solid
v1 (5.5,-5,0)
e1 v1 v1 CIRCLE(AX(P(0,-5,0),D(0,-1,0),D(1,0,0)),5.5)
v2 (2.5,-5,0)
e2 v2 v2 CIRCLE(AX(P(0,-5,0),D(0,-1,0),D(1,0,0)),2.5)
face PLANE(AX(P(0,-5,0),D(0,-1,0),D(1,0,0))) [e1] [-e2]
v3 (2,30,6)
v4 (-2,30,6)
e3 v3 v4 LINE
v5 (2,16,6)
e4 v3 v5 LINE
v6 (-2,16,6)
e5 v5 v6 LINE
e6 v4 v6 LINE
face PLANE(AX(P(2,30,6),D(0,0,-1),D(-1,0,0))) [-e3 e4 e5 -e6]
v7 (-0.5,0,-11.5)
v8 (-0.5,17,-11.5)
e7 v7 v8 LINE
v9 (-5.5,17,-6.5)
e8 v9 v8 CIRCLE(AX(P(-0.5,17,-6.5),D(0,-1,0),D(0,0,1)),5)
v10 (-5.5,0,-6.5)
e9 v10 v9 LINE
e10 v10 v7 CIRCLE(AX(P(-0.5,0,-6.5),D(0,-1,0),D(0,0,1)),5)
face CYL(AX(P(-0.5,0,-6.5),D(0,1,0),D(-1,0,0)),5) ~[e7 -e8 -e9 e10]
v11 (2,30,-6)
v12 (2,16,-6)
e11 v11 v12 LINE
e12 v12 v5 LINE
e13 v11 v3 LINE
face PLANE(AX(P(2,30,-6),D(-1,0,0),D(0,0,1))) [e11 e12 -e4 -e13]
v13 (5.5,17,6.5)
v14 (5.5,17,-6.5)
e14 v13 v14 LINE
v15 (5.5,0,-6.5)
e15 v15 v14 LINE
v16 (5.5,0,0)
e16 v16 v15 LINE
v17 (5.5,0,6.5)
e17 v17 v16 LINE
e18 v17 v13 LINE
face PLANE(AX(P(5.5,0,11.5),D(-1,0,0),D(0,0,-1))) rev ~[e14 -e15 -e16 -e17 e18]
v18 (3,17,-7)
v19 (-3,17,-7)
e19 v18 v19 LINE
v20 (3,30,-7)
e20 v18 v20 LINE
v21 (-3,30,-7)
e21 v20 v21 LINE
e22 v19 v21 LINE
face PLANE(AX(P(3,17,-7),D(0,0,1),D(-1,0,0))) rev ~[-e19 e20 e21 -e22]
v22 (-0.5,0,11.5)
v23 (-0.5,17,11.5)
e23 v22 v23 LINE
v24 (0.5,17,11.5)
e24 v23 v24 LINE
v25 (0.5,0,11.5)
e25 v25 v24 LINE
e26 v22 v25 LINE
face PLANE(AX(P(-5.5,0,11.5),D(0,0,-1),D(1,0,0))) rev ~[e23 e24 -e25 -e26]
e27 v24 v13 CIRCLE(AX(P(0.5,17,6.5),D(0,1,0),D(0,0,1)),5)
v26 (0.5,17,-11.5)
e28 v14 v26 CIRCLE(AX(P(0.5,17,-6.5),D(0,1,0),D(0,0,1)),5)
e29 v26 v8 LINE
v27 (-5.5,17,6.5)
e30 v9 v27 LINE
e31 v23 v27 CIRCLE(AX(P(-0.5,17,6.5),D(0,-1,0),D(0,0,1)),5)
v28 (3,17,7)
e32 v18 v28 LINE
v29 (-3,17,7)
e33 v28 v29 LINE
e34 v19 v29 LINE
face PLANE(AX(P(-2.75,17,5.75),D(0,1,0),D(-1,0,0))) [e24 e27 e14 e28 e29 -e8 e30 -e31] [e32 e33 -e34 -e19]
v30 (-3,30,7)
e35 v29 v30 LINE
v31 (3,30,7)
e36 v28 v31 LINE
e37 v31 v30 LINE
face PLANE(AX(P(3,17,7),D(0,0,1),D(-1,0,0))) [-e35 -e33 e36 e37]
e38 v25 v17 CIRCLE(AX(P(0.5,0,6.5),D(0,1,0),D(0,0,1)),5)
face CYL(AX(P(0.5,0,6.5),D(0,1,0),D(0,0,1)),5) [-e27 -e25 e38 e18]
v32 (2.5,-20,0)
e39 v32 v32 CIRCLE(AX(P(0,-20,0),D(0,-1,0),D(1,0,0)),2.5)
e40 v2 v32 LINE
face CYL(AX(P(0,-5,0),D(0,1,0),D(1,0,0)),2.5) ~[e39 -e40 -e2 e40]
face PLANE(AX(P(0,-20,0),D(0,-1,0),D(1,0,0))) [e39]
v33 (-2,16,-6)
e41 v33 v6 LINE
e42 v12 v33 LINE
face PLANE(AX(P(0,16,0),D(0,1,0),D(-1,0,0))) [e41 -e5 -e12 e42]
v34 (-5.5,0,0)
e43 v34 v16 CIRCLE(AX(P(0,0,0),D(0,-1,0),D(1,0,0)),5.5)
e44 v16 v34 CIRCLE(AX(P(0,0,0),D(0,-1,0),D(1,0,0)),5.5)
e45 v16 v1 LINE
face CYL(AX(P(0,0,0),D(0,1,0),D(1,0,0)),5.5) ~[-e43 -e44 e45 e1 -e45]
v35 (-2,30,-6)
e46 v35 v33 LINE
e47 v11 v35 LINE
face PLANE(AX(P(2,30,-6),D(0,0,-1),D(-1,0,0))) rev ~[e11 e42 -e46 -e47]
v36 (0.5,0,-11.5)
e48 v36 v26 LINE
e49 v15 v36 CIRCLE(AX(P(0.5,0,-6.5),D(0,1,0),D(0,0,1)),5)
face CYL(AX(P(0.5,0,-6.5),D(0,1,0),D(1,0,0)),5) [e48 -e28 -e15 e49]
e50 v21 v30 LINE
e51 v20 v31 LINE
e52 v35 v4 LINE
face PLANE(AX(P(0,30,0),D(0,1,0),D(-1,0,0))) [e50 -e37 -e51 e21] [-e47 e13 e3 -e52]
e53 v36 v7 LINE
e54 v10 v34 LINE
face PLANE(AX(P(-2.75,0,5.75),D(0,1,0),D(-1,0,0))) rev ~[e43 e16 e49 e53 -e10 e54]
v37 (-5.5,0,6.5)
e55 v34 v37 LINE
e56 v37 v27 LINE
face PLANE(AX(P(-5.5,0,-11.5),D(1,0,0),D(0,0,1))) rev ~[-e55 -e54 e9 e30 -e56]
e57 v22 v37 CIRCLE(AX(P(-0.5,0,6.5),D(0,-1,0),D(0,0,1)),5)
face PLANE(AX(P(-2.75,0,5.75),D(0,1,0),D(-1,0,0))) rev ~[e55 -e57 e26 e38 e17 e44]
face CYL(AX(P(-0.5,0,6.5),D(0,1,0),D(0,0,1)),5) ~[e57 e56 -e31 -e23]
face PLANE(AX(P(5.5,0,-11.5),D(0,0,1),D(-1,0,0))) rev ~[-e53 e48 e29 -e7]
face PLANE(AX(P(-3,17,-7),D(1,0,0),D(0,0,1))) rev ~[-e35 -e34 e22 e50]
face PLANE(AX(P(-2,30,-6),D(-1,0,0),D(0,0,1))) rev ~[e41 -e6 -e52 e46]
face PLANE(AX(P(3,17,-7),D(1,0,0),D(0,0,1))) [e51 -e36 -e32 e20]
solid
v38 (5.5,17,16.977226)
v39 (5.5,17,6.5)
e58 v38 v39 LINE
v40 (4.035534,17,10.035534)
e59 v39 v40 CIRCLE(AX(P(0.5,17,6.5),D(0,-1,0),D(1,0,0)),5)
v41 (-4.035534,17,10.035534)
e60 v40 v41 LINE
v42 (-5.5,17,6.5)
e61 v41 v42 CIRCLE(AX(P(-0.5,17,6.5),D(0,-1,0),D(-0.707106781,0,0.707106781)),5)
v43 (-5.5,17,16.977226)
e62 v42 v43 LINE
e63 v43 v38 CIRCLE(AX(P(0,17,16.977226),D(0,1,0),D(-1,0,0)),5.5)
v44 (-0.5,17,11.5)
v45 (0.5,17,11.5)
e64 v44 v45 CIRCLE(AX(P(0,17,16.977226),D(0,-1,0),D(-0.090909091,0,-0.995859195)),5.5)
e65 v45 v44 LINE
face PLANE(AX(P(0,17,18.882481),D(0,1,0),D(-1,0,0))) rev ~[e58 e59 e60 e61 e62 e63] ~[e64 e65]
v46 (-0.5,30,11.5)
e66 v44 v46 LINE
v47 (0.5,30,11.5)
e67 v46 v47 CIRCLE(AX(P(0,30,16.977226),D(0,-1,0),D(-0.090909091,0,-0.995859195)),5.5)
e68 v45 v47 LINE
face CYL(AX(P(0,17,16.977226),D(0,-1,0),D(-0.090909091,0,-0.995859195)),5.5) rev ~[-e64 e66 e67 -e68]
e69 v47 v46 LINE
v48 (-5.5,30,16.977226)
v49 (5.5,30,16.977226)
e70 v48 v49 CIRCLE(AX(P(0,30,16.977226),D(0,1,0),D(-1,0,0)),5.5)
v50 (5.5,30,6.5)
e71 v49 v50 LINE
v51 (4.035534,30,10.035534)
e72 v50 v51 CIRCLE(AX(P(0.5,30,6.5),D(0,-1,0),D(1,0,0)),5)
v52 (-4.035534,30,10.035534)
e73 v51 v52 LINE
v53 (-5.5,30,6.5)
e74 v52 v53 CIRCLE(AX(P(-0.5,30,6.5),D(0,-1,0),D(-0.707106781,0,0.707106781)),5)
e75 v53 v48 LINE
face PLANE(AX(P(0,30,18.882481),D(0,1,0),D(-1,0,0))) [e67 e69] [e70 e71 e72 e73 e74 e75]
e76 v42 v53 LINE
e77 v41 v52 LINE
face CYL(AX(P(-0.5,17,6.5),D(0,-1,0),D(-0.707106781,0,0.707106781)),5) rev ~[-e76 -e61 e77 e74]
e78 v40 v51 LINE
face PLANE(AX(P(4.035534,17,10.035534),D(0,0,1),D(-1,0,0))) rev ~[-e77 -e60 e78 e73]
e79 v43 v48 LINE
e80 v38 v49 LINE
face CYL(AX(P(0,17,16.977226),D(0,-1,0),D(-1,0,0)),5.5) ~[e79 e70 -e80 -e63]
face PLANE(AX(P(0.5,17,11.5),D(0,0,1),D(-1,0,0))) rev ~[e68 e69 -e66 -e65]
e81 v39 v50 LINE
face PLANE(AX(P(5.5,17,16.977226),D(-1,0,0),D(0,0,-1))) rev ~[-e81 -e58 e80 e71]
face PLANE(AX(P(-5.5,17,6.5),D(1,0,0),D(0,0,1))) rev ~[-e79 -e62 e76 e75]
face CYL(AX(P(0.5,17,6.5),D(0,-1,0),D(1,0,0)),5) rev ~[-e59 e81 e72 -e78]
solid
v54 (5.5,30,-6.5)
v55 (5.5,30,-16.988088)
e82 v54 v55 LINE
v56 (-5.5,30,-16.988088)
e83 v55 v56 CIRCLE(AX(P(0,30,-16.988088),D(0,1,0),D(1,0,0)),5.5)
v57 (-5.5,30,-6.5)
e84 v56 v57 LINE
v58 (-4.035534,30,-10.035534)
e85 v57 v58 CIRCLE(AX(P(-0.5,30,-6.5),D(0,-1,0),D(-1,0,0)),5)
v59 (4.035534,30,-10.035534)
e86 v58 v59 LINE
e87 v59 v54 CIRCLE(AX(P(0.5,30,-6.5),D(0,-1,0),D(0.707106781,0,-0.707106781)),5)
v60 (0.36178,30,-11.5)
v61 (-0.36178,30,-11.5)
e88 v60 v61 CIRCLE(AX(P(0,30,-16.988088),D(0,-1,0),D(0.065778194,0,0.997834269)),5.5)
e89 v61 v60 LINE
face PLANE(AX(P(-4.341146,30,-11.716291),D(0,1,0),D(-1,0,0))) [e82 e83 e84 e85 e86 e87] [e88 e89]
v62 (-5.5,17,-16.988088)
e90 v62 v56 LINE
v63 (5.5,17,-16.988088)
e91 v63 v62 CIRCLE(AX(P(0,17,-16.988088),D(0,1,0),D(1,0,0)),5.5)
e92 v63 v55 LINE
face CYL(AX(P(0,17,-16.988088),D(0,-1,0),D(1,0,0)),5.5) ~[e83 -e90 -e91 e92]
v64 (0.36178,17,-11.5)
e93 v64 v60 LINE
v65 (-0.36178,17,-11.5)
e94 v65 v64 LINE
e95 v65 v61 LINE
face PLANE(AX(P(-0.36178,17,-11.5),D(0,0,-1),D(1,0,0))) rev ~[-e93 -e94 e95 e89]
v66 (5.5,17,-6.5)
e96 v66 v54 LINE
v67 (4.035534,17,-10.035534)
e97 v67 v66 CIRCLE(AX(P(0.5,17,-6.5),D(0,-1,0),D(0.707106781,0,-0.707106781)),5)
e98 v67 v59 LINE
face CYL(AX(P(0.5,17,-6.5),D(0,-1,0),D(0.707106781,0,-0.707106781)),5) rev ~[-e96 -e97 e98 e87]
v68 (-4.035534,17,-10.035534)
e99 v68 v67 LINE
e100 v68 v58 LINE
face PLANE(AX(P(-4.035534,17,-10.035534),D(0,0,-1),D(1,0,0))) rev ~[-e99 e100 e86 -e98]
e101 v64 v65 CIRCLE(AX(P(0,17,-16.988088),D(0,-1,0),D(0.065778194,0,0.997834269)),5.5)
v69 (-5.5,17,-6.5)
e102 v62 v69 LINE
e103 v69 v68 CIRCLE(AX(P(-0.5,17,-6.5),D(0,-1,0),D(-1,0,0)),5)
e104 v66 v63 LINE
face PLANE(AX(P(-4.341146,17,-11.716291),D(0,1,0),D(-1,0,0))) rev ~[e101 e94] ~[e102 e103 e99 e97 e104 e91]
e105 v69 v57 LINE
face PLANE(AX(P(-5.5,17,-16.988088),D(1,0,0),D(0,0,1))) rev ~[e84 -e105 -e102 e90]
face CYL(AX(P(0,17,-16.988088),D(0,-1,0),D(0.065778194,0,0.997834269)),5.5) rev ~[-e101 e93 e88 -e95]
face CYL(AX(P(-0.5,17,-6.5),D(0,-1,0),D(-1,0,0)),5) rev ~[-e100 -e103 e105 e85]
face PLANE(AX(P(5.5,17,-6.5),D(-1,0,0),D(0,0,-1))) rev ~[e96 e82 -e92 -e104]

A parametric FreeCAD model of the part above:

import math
import FreeCAD as App
import Part
import Sketcher

V = App.Vector


def edges_at(feature, points):
    """Names of the edges that pass closest to the given points."""
    edges = feature.Shape.Edges
    near = lambda p: min(range(len(edges)), key=lambda i: edges[i].distToShape(Part.Vertex(*p))[0])
    return sorted({f"Edge{near(p) + 1}" for p in points})

doc = App.newDocument("Part")
body = doc.addObject("PartDesign::Body", "Body")

# Sketch on XZ plane
sketch1 = body.newObject("Sketcher::SketchObject", "Sketch")
sketch1.AttachmentSupport = (doc.getObject("XZ_Plane"), [""])
sketch1.MapMode = "FlatFace"
sketch1.addGeometry(Part.Circle(V(0, 0, 0), V(0, 0, 1), 6), False)
sketch1.addConstraint(Sketcher.Constraint("Coincident", 0, 3, -1, 1))
sketch1.addConstraint(Sketcher.Constraint("Diameter", 0, 11.0))
pad1 = body.newObject("PartDesign::Pad", "Pad")
pad1.Profile = sketch1
pad1.Length = 5

# Sketch on XZ plane
sketch2 = body.newObject("Sketcher::SketchObject", "Sketch001")
sketch2.AttachmentSupport = (doc.getObject("XZ_Plane"), [""])
sketch2.MapMode = "FlatFace"
sketch2.AttachmentOffset = App.Placement(V(0, 0, 5), App.Rotation())
sketch2.addGeometry(Part.Circle(V(0, 0, 0), V(0, 0, 1), 2.5), False)
sketch2.addConstraint(Sketcher.Constraint("Coincident", 0, 3, -1, 1))
sketch2.addConstraint(Sketcher.Constraint("Diameter", 0, 5.0))
pad2 = body.newObject("PartDesign::Pad", "Pad001")
pad2.Profile = sketch2
pad2.Length = 15

# Sketch on XZ plane
sketch3 = body.newObject("Sketcher::SketchObject", "Sketch002")
sketch3.AttachmentSupport = (doc.getObject("XZ_Plane"), [""])
sketch3.MapMode = "FlatFace"
sketch3.addGeometry(Part.LineSegment(V(-6, 12, 0), V(6, 12, 0)), False)
sketch3.addGeometry(Part.LineSegment(V(6, 12, 0), V(6, -12, 0)), False)
sketch3.addGeometry(Part.LineSegment(V(6, -12, 0), V(-6, -12, 0)), False)
sketch3.addGeometry(Part.LineSegment(V(-6, -12, 0), V(-6, 12, 0)), False)
sketch3.addConstraint(Sketcher.Constraint("Coincident", 0, 2, 1, 1))
sketch3.addConstraint(Sketcher.Constraint("Coincident", 1, 2, 2, 1))
sketch3.addConstraint(Sketcher.Constraint("Coincident", 2, 2, 3, 1))
sketch3.addConstraint(Sketcher.Constraint("Coincident", 3, 2, 0, 1))
sketch3.addConstraint(Sketcher.Constraint("Horizontal", 0))
sketch3.addConstraint(Sketcher.Constraint("Vertical", 1))
sketch3.addConstraint(Sketcher.Constraint("Horizontal", 2))
sketch3.addConstraint(Sketcher.Constraint("Vertical", 3))
sketch3.addConstraint(Sketcher.Constraint("Symmetric", 0, 2, 2, 2, -1, 1))
sketch3.addConstraint(Sketcher.Constraint("DistanceX", 0, 1, 0, 2, 11.0))
sketch3.addConstraint(Sketcher.Constraint("DistanceY", 1, 2, 1, 1, 23.0))
pad3 = body.newObject("PartDesign::Pad", "Pad002")
pad3.Profile = sketch3
pad3.Length = 17
pad3.Reversed = True
doc.recompute()

fillet = body.newObject("PartDesign::Fillet", "Fillet")
fillet.Base = (pad3, edges_at(pad3, [
    (-5.5, 8.5, -11.5),
    (5.5, 8.5, -11.5),
    (5.5, 8.5, 11.5),
    (-5.5, 8.5, 11.5),
]))
fillet.Radius = 5

# Sketch on XZ plane
sketch4 = body.newObject("Sketcher::SketchObject", "Sketch003")
sketch4.AttachmentSupport = (doc.getObject("XZ_Plane"), [""])
sketch4.MapMode = "FlatFace"
sketch4.AttachmentOffset = App.Placement(V(0, 0, -17), App.Rotation())
sketch4.addGeometry(Part.LineSegment(V(3, 7, 0), V(3, -7, 0)), False)
sketch4.addGeometry(Part.LineSegment(V(3, -7, 0), V(-3, -7, 0)), False)
sketch4.addGeometry(Part.LineSegment(V(-3, -7, 0), V(-3, 7, 0)), False)
sketch4.addGeometry(Part.LineSegment(V(-3, 7, 0), V(3, 7, 0)), False)
sketch4.addConstraint(Sketcher.Constraint("Coincident", 0, 2, 1, 1))
sketch4.addConstraint(Sketcher.Constraint("Coincident", 1, 2, 2, 1))
sketch4.addConstraint(Sketcher.Constraint("Coincident", 2, 2, 3, 1))
sketch4.addConstraint(Sketcher.Constraint("Coincident", 3, 2, 0, 1))
sketch4.addConstraint(Sketcher.Constraint("Vertical", 0))
sketch4.addConstraint(Sketcher.Constraint("Horizontal", 1))
sketch4.addConstraint(Sketcher.Constraint("Vertical", 2))
sketch4.addConstraint(Sketcher.Constraint("Horizontal", 3))
sketch4.addConstraint(Sketcher.Constraint("Symmetric", 0, 2, 2, 2, -1, 1))
sketch4.addConstraint(Sketcher.Constraint("DistanceX", 1, 2, 1, 1, 6.0))
sketch4.addConstraint(Sketcher.Constraint("DistanceY", 0, 2, 0, 1, 14.0))
pad4 = body.newObject("PartDesign::Pad", "Pad003")
pad4.Profile = sketch4
pad4.Length = 13
pad4.Reversed = True

# Sketch on XZ plane
sketch5 = body.newObject("Sketcher::SketchObject", "Sketch004")
sketch5.AttachmentSupport = (doc.getObject("XZ_Plane"), [""])
sketch5.MapMode = "FlatFace"
sketch5.AttachmentOffset = App.Placement(V(0, 0, -30), App.Rotation())
sketch5.addGeometry(Part.LineSegment(V(2, 6, 0), V(2, -6, 0)), False)
sketch5.addGeometry(Part.LineSegment(V(2, -6, 0), V(-2, -6, 0)), False)
sketch5.addGeometry(Part.LineSegment(V(-2, -6, 0), V(-2, 6, 0)), False)
sketch5.addGeometry(Part.LineSegment(V(-2, 6, 0), V(2, 6, 0)), False)
sketch5.addConstraint(Sketcher.Constraint("Coincident", 0, 2, 1, 1))
sketch5.addConstraint(Sketcher.Constraint("Coincident", 1, 2, 2, 1))
sketch5.addConstraint(Sketcher.Constraint("Coincident", 2, 2, 3, 1))
sketch5.addConstraint(Sketcher.Constraint("Coincident", 3, 2, 0, 1))
sketch5.addConstraint(Sketcher.Constraint("Vertical", 0))
sketch5.addConstraint(Sketcher.Constraint("Horizontal", 1))
sketch5.addConstraint(Sketcher.Constraint("Vertical", 2))
sketch5.addConstraint(Sketcher.Constraint("Horizontal", 3))
sketch5.addConstraint(Sketcher.Constraint("Symmetric", 0, 2, 2, 2, -1, 1))
sketch5.addConstraint(Sketcher.Constraint("DistanceX", 1, 2, 1, 1, 4.0))
sketch5.addConstraint(Sketcher.Constraint("DistanceY", 0, 2, 0, 1, 12.0))
pocket1 = body.newObject("PartDesign::Pocket", "Pocket")
pocket1.Profile = sketch5
pocket1.Length = 14
pocket1.Reversed = True
body2 = doc.addObject("PartDesign::Body", "Body001")

# Sketch on XZ plane
sketch6 = body2.newObject("Sketcher::SketchObject", "Sketch005")
sketch6.AttachmentSupport = (doc.getObject("XZ_Plane001"), [""])
sketch6.MapMode = "FlatFace"
sketch6.AttachmentOffset = App.Placement(V(0, 0, -17), App.Rotation())
sketch6.addGeometry(Part.ArcOfCircle(Part.Circle(V(0, 17, 0), V(0, 0, 1), 5.5), math.radians(0), math.radians(180)), False)
sketch6.addGeometry(Part.LineSegment(V(5.5, 17, 0), V(5.5, 6.5, 0)), False)
sketch6.addGeometry(Part.ArcOfCircle(Part.Circle(V(0.5, 6.5, 0), V(0, 0, 1), 5), math.radians(0), math.radians(45)), False)
sketch6.addGeometry(Part.LineSegment(V(4, 10, 0), V(-4, 10, 0)), False)
sketch6.addGeometry(Part.ArcOfCircle(Part.Circle(V(-0.5, 6.5, 0), V(0, 0, 1), 5), math.radians(135), math.radians(180)), False)
sketch6.addGeometry(Part.LineSegment(V(-5.5, 6.5, 0), V(-5.5, 17, 0)), False)
sketch6.addGeometry(Part.LineSegment(V(0.5, 11.5, 0), V(-0.5, 11.5, 0)), False)
sketch6.addGeometry(Part.ArcOfCircle(Part.Circle(V(0, 17, 0), V(0, 0, 1), 5.5), math.radians(-95.22), math.radians(-84.78)), False)
sketch6.addConstraint(Sketcher.Constraint("Tangent", 0, 1, 1, 1))
sketch6.addConstraint(Sketcher.Constraint("Tangent", 1, 2, 2, 1))
sketch6.addConstraint(Sketcher.Constraint("Coincident", 2, 2, 3, 1))
sketch6.addConstraint(Sketcher.Constraint("Coincident", 3, 2, 4, 1))
sketch6.addConstraint(Sketcher.Constraint("Tangent", 4, 2, 5, 1))
sketch6.addConstraint(Sketcher.Constraint("Tangent", 5, 2, 0, 2))
sketch6.addConstraint(Sketcher.Constraint("Coincident", 6, 1, 7, 2))
sketch6.addConstraint(Sketcher.Constraint("Coincident", 7, 1, 6, 2))
sketch6.addConstraint(Sketcher.Constraint("Vertical", 1))
sketch6.addConstraint(Sketcher.Constraint("Horizontal", 3))
sketch6.addConstraint(Sketcher.Constraint("Vertical", 5))
sketch6.addConstraint(Sketcher.Constraint("Horizontal", 6))
sketch6.addConstraint(Sketcher.Constraint("Coincident", 7, 3, 0, 3))
sketch6.addConstraint(Sketcher.Constraint("Equal", 2, 4))
sketch6.addConstraint(Sketcher.Constraint("Equal", 0, 7))
sketch6.addConstraint(Sketcher.Constraint("Symmetric", 2, 3, 4, 3, -2))
sketch6.addConstraint(Sketcher.Constraint("Vertical", 2, 3, 6, 1))
sketch6.addConstraint(Sketcher.Constraint("Radius", 2, 5.0))
sketch6.addConstraint(Sketcher.Constraint("Radius", 0, 5.5))
sketch6.addConstraint(Sketcher.Constraint("DistanceY", 2, 3, 6, 1, 5.0))
sketch6.addConstraint(Sketcher.Constraint("DistanceY", -1, 1, 2, 3, 6.5))
sketch6.addConstraint(Sketcher.Constraint("DistanceX", 3, 2, 3, 1, 8.071068))
pad5 = body2.newObject("PartDesign::Pad", "Pad004")
pad5.Profile = sketch6
pad5.Length = 13
pad5.Reversed = True
body3 = doc.addObject("PartDesign::Body", "Body002")

# Sketch on XZ plane
sketch7 = body3.newObject("Sketcher::SketchObject", "Sketch006")
sketch7.AttachmentSupport = (doc.getObject("XZ_Plane002"), [""])
sketch7.MapMode = "FlatFace"
sketch7.AttachmentOffset = App.Placement(V(0, 0, -17), App.Rotation())
sketch7.addGeometry(Part.LineSegment(V(-5.5, -17, 0), V(-5.5, -6.5, 0)), False)
sketch7.addGeometry(Part.ArcOfCircle(Part.Circle(V(-0.5, -6.5, 0), V(0, 0, 1), 5), math.radians(180), math.radians(225)), False)
sketch7.addGeometry(Part.LineSegment(V(-4, -10, 0), V(4, -10, 0)), False)
sketch7.addGeometry(Part.ArcOfCircle(Part.Circle(V(0.5, -6.5, 0), V(0, 0, 1), 5), math.radians(-45), math.radians(0)), False)
sketch7.addGeometry(Part.LineSegment(V(5.5, -6.5, 0), V(5.5, -17, 0)), False)
sketch7.addGeometry(Part.ArcOfCircle(Part.Circle(V(0, -17, 0), V(0, 0, 1), 5.5), math.radians(180), math.radians(360)), False)
sketch7.addGeometry(Part.LineSegment(V(-0.4, -11.5, 0), V(0.4, -11.5, 0)), False)
sketch7.addGeometry(Part.ArcOfCircle(Part.Circle(V(0, -17, 0), V(0, 0, 1), 5.5), math.radians(86.23), math.radians(93.77)), False)
sketch7.addConstraint(Sketcher.Constraint("Tangent", 0, 2, 1, 1))
sketch7.addConstraint(Sketcher.Constraint("Coincident", 1, 2, 2, 1))
sketch7.addConstraint(Sketcher.Constraint("Coincident", 2, 2, 3, 1))
sketch7.addConstraint(Sketcher.Constraint("Tangent", 3, 2, 4, 1))
sketch7.addConstraint(Sketcher.Constraint("Tangent", 4, 2, 5, 2))
sketch7.addConstraint(Sketcher.Constraint("Tangent", 5, 1, 0, 1))
sketch7.addConstraint(Sketcher.Constraint("Coincident", 6, 1, 7, 2))
sketch7.addConstraint(Sketcher.Constraint("Coincident", 7, 1, 6, 2))
sketch7.addConstraint(Sketcher.Constraint("Vertical", 0))
sketch7.addConstraint(Sketcher.Constraint("Horizontal", 2))
sketch7.addConstraint(Sketcher.Constraint("Vertical", 4))
sketch7.addConstraint(Sketcher.Constraint("Horizontal", 6))
sketch7.addConstraint(Sketcher.Constraint("Coincident", 7, 3, 5, 3))
sketch7.addConstraint(Sketcher.Constraint("Equal", 1, 3))
sketch7.addConstraint(Sketcher.Constraint("Equal", 5, 7))
sketch7.addConstraint(Sketcher.Constraint("Symmetric", 1, 3, 3, 3, -2))
sketch7.addConstraint(Sketcher.Constraint("Radius", 1, 5.0))
sketch7.addConstraint(Sketcher.Constraint("Radius", 5, 5.5))
sketch7.addConstraint(Sketcher.Constraint("DistanceY", 6, 1, 1, 3, 5.0))
sketch7.addConstraint(Sketcher.Constraint("DistanceY", 1, 3, -1, 1, 6.5))
sketch7.addConstraint(Sketcher.Constraint("DistanceX", 6, 1, 6, 2, 0.72356))
sketch7.addConstraint(Sketcher.Constraint("DistanceX", 2, 1, 2, 2, 8.071068))
pad6 = body3.newObject("PartDesign::Pad", "Pad005")
pad6.Profile = sketch7
pad6.Length = 13
pad6.Reversed = True

doc.recompute()
